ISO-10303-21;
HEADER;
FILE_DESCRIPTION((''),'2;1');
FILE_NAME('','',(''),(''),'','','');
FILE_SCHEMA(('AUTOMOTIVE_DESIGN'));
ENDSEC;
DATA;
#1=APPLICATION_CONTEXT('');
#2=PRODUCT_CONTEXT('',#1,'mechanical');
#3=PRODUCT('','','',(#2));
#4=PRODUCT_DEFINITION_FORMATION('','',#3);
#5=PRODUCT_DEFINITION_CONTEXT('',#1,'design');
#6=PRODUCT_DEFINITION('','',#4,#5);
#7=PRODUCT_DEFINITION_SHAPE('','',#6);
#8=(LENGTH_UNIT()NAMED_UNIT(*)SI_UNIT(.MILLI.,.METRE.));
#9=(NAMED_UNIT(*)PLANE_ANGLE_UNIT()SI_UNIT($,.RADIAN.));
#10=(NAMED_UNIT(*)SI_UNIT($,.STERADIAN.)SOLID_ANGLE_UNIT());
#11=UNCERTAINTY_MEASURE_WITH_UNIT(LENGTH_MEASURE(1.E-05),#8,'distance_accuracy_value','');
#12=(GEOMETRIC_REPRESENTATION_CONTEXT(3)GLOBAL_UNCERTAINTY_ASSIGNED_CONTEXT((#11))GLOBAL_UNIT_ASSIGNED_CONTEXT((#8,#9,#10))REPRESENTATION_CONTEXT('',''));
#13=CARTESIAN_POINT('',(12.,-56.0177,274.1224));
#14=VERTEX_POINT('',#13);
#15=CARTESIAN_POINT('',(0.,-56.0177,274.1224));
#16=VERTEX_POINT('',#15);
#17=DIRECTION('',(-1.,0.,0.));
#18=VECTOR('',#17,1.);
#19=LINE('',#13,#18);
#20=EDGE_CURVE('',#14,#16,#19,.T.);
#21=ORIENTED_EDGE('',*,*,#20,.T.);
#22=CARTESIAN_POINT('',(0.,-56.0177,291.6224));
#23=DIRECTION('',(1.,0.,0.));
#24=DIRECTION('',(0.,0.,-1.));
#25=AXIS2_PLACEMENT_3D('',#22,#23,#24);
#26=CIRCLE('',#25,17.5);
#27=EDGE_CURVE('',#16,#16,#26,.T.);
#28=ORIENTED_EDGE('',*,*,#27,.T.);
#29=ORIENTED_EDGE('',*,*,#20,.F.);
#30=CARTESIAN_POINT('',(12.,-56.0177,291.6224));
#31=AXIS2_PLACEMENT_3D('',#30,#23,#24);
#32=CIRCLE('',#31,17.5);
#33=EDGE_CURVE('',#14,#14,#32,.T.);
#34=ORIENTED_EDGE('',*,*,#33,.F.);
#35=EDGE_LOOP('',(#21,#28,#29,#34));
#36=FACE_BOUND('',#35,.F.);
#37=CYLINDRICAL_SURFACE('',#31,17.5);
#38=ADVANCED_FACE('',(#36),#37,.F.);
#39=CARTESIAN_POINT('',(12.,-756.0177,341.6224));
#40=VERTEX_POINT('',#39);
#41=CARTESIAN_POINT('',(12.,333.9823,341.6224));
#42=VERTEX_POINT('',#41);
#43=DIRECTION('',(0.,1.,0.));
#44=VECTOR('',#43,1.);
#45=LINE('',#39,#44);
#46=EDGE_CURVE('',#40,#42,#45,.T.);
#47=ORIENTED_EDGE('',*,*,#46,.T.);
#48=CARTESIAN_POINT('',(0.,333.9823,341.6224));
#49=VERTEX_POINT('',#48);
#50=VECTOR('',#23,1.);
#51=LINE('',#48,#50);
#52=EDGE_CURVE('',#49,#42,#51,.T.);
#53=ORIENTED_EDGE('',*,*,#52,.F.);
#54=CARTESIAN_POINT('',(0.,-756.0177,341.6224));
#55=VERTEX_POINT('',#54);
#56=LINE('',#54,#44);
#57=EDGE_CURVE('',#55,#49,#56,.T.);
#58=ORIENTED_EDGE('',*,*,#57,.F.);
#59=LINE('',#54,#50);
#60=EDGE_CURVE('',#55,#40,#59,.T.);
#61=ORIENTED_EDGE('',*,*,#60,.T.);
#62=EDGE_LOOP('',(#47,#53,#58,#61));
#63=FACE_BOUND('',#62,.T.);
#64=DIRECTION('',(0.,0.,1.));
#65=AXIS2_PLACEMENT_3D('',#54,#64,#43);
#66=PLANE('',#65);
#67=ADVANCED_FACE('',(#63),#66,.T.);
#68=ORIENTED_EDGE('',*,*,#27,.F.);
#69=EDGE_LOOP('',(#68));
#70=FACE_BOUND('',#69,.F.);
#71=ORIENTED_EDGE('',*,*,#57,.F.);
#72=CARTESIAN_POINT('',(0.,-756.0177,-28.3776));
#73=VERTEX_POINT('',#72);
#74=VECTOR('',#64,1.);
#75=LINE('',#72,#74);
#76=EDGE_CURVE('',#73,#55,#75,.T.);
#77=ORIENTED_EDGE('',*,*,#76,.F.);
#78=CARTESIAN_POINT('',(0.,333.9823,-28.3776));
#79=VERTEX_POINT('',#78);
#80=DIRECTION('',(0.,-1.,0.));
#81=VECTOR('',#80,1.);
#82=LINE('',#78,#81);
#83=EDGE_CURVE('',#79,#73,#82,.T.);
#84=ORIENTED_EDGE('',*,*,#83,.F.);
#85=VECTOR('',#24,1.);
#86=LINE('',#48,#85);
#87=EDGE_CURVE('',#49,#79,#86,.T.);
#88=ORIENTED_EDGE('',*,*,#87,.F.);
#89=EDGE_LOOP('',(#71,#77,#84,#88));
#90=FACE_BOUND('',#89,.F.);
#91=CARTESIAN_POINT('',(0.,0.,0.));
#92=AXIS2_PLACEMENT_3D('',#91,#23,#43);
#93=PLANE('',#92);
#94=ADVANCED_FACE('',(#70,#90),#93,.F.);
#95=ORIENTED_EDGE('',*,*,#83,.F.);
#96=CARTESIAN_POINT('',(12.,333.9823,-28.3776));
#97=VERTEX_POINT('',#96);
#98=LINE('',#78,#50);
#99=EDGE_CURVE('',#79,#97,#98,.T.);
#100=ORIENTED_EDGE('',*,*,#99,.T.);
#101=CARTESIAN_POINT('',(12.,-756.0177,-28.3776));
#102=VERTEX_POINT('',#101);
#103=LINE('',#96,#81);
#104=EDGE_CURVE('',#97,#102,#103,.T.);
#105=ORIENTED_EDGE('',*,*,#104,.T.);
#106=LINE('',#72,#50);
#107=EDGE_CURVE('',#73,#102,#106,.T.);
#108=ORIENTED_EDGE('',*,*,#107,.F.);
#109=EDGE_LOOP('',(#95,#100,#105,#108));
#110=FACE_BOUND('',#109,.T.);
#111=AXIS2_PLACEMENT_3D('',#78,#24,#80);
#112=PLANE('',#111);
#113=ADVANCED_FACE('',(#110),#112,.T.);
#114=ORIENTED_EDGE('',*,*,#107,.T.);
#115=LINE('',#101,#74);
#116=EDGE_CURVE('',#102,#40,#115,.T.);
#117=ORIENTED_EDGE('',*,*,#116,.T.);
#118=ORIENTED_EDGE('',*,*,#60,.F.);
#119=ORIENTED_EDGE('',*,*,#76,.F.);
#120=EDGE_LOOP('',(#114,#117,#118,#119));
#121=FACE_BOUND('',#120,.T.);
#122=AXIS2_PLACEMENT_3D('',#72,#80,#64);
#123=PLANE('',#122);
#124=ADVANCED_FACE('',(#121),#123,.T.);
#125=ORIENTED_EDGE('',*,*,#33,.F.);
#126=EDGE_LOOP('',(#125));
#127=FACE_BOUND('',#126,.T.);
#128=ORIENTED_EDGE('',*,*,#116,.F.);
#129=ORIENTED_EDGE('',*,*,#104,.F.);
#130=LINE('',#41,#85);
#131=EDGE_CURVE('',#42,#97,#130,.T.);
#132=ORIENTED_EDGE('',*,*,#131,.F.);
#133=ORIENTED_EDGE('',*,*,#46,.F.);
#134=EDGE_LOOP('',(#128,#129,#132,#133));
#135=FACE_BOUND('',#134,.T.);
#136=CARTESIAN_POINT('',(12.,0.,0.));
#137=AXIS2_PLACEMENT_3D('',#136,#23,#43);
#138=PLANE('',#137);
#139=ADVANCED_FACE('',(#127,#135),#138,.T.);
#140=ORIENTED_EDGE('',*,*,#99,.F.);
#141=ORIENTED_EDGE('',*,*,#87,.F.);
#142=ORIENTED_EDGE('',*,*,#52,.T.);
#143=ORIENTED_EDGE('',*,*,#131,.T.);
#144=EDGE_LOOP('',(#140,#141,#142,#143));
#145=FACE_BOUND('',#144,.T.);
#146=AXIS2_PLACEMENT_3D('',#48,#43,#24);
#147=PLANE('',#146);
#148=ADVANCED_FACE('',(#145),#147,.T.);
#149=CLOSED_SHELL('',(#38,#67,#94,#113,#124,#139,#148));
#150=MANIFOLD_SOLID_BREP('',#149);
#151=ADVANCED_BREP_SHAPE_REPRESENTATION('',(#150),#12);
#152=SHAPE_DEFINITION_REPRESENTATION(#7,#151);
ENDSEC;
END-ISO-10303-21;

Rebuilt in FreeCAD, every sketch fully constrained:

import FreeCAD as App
import Part
import Sketcher
from FreeCAD import Vector
Q = App.Units.Quantity

doc = App.newDocument("Part")
body = doc.addObject("PartDesign::Body", "Body")

sketch1 = body.newObject("Sketcher::SketchObject", "Sketch")
sketch1.AttachmentSupport = (doc.getObject("YZ_Plane"), [""])
sketch1.MapMode = "FlatFace"
sketch1.addGeometry([
    Part.LineSegment(Vector(334, 342, 0), Vector(-756, 342, 0)),
    Part.LineSegment(Vector(-756, 342, 0), Vector(-756, -28, 0)),
    Part.LineSegment(Vector(-756, -28, 0), Vector(334, -28, 0)),
    Part.LineSegment(Vector(334, -28, 0), Vector(334, 342, 0)),
], False)
sketch1.addConstraint([
    Sketcher.Constraint("Coincident", 0, 2, 1, 1),
    Sketcher.Constraint("Coincident", 1, 2, 2, 1),
    Sketcher.Constraint("Coincident", 2, 2, 3, 1),
    Sketcher.Constraint("Coincident", 3, 2, 0, 1),
    Sketcher.Constraint("Horizontal", 0),
    Sketcher.Constraint("Vertical", 1),
    Sketcher.Constraint("Horizontal", 2),
    Sketcher.Constraint("Vertical", 3),
    Sketcher.Constraint("DistanceX", 0, 2, 0, 1, Q("1090 mm")),
    Sketcher.Constraint("DistanceY", 1, 2, 1, 1, Q("370 mm")),
    Sketcher.Constraint("DistanceX", 0, 2, -1, 1, Q("756.0177 mm")),
    Sketcher.Constraint("DistanceY", -1, 1, 0, 2, Q("341.6224 mm")),
])
pad1 = body.newObject("PartDesign::Pad", "Pad")
pad1.Profile = sketch1
pad1.Length = 12

sketch2 = body.newObject("Sketcher::SketchObject", "Sketch001")
sketch2.AttachmentSupport = (doc.getObject("YZ_Plane"), [""])
sketch2.MapMode = "FlatFace"
sketch2.AttachmentOffset = App.Placement(Vector(0, 0, 12), App.Rotation())
sketch2.addGeometry(Part.Circle(Vector(-56, 292, 0), Vector(0, 0, 1), 18), False)
sketch2.addConstraint([
    Sketcher.Constraint("Diameter", 0, Q("35 mm")),
    Sketcher.Constraint("DistanceX", 0, 3, -1, 1, Q("56.0177 mm")),
    Sketcher.Constraint("DistanceY", -1, 1, 0, 3, Q("291.6224 mm")),
])
pocket1 = body.newObject("PartDesign::Pocket", "Pocket")
pocket1.Profile = sketch2
pocket1.Type = "UpToFirst"

doc.recompute()
